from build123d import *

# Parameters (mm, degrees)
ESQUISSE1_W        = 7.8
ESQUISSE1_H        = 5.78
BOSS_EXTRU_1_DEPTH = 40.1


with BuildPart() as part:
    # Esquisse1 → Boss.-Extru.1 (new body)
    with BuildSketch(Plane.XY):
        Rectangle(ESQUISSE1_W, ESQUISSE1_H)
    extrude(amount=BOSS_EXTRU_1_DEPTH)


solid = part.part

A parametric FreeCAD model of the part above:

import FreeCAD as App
import Part
import Sketcher


def add_polygon(sketch, points):
    """Adds a closed chain of lines whose ends are joined by coincident constraints."""
    first, n = sketch.GeometryCount, len(points)
    for a, b in zip(points, points[1:] + points[:1]):
        sketch.addGeometry(Part.LineSegment(App.Vector(*a, 0), App.Vector(*b, 0)), False)
    for i in range(n):
        sketch.addConstraint(Sketcher.Constraint("Coincident", first + i, 2, first + (i + 1) % n, 1))

doc = App.newDocument("Part")
body = doc.addObject("PartDesign::Body", "Body")

# Sketch on XY plane
sketch1 = doc.addObject("Sketcher::SketchObject", "Sketch")
body.addObject(sketch1)
sketch1.AttachmentSupport = (doc.XY_Plane, [""])
sketch1.MapMode = "FlatFace"
add_polygon(sketch1, [(-4, 3), (-4, -3), (4, -3), (4, 3)])  # lines 0-3
sketch1.addConstraint(Sketcher.Constraint("Vertical", 0))
sketch1.addConstraint(Sketcher.Constraint("Horizontal", 1))
sketch1.addConstraint(Sketcher.Constraint("Vertical", 2))
sketch1.addConstraint(Sketcher.Constraint("Horizontal", 3))
sketch1.addConstraint(Sketcher.Constraint("Symmetric", 0, 2, 2, 2, -1, 1))
sketch1.addConstraint(Sketcher.Constraint("DistanceX", 1, 1, 1, 2, 7.8))
sketch1.addConstraint(Sketcher.Constraint("DistanceY", 0, 2, 0, 1, 5.78))
pad1 = doc.addObject("PartDesign::Pad", "Pad")
body.addObject(pad1)
pad1.Profile = sketch1
pad1.Length = 40.1

doc.recompute()
